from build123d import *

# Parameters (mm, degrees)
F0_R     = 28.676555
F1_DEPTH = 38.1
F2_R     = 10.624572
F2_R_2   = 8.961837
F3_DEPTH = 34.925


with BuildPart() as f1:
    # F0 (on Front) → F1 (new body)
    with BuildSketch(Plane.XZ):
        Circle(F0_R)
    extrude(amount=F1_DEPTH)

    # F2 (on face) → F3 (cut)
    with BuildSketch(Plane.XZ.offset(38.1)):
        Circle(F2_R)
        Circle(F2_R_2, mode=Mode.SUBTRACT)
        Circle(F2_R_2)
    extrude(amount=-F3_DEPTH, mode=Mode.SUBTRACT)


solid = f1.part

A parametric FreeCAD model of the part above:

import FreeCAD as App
import Part
import Sketcher

V = App.Vector

doc = App.newDocument("Part")
params = doc.addObject("Spreadsheet::Sheet", "Params")
for row, (alias, value) in enumerate([
    ("pad1_length", "1.5 in"),
    ("pocket1_length", "1.375 in"),
], start=1):
    params.set(f"A{row}", alias)
    params.set(f"B{row}", "=" + value)
    params.setAlias(f"B{row}", alias)

body = doc.addObject("PartDesign::Body", "Body")

sketch1 = body.newObject("Sketcher::SketchObject", "Sketch")
sketch1.AttachmentSupport = (doc.getObject("XZ_Plane"), [""])
sketch1.MapMode = "FlatFace"
sketch1.addGeometry(Part.Circle(V(0, 0, 0), V(0, 0, 1), 28.676555), False)
sketch1.addConstraint([
    Sketcher.Constraint("Coincident", 0, 3, -1, 1),
    Sketcher.Constraint("Diameter", 0, 57.35311),
])
pad1 = body.newObject("PartDesign::Pad", "Pad")
pad1.Profile = sketch1
pad1.setExpression("Length", "Params.pad1_length")

sketch2 = body.newObject("Sketcher::SketchObject", "Sketch001")
sketch2.AttachmentSupport = (doc.getObject("XZ_Plane"), [""])
sketch2.MapMode = "FlatFace"
sketch2.AttachmentOffset = App.Placement(V(0, 0, 1.5 * 25.4), App.Rotation())
sketch2.addGeometry(Part.Circle(V(0, 0, 0), V(0, 0, 1), 10.624572), False)
sketch2.addConstraint([
    Sketcher.Constraint("Coincident", 0, 3, -1, 1),
    Sketcher.Constraint("Diameter", 0, 21.249144),
])
pocket1 = body.newObject("PartDesign::Pocket", "Pocket")
pocket1.Profile = sketch2
pocket1.setExpression("Length", "Params.pocket1_length")

doc.recompute()
